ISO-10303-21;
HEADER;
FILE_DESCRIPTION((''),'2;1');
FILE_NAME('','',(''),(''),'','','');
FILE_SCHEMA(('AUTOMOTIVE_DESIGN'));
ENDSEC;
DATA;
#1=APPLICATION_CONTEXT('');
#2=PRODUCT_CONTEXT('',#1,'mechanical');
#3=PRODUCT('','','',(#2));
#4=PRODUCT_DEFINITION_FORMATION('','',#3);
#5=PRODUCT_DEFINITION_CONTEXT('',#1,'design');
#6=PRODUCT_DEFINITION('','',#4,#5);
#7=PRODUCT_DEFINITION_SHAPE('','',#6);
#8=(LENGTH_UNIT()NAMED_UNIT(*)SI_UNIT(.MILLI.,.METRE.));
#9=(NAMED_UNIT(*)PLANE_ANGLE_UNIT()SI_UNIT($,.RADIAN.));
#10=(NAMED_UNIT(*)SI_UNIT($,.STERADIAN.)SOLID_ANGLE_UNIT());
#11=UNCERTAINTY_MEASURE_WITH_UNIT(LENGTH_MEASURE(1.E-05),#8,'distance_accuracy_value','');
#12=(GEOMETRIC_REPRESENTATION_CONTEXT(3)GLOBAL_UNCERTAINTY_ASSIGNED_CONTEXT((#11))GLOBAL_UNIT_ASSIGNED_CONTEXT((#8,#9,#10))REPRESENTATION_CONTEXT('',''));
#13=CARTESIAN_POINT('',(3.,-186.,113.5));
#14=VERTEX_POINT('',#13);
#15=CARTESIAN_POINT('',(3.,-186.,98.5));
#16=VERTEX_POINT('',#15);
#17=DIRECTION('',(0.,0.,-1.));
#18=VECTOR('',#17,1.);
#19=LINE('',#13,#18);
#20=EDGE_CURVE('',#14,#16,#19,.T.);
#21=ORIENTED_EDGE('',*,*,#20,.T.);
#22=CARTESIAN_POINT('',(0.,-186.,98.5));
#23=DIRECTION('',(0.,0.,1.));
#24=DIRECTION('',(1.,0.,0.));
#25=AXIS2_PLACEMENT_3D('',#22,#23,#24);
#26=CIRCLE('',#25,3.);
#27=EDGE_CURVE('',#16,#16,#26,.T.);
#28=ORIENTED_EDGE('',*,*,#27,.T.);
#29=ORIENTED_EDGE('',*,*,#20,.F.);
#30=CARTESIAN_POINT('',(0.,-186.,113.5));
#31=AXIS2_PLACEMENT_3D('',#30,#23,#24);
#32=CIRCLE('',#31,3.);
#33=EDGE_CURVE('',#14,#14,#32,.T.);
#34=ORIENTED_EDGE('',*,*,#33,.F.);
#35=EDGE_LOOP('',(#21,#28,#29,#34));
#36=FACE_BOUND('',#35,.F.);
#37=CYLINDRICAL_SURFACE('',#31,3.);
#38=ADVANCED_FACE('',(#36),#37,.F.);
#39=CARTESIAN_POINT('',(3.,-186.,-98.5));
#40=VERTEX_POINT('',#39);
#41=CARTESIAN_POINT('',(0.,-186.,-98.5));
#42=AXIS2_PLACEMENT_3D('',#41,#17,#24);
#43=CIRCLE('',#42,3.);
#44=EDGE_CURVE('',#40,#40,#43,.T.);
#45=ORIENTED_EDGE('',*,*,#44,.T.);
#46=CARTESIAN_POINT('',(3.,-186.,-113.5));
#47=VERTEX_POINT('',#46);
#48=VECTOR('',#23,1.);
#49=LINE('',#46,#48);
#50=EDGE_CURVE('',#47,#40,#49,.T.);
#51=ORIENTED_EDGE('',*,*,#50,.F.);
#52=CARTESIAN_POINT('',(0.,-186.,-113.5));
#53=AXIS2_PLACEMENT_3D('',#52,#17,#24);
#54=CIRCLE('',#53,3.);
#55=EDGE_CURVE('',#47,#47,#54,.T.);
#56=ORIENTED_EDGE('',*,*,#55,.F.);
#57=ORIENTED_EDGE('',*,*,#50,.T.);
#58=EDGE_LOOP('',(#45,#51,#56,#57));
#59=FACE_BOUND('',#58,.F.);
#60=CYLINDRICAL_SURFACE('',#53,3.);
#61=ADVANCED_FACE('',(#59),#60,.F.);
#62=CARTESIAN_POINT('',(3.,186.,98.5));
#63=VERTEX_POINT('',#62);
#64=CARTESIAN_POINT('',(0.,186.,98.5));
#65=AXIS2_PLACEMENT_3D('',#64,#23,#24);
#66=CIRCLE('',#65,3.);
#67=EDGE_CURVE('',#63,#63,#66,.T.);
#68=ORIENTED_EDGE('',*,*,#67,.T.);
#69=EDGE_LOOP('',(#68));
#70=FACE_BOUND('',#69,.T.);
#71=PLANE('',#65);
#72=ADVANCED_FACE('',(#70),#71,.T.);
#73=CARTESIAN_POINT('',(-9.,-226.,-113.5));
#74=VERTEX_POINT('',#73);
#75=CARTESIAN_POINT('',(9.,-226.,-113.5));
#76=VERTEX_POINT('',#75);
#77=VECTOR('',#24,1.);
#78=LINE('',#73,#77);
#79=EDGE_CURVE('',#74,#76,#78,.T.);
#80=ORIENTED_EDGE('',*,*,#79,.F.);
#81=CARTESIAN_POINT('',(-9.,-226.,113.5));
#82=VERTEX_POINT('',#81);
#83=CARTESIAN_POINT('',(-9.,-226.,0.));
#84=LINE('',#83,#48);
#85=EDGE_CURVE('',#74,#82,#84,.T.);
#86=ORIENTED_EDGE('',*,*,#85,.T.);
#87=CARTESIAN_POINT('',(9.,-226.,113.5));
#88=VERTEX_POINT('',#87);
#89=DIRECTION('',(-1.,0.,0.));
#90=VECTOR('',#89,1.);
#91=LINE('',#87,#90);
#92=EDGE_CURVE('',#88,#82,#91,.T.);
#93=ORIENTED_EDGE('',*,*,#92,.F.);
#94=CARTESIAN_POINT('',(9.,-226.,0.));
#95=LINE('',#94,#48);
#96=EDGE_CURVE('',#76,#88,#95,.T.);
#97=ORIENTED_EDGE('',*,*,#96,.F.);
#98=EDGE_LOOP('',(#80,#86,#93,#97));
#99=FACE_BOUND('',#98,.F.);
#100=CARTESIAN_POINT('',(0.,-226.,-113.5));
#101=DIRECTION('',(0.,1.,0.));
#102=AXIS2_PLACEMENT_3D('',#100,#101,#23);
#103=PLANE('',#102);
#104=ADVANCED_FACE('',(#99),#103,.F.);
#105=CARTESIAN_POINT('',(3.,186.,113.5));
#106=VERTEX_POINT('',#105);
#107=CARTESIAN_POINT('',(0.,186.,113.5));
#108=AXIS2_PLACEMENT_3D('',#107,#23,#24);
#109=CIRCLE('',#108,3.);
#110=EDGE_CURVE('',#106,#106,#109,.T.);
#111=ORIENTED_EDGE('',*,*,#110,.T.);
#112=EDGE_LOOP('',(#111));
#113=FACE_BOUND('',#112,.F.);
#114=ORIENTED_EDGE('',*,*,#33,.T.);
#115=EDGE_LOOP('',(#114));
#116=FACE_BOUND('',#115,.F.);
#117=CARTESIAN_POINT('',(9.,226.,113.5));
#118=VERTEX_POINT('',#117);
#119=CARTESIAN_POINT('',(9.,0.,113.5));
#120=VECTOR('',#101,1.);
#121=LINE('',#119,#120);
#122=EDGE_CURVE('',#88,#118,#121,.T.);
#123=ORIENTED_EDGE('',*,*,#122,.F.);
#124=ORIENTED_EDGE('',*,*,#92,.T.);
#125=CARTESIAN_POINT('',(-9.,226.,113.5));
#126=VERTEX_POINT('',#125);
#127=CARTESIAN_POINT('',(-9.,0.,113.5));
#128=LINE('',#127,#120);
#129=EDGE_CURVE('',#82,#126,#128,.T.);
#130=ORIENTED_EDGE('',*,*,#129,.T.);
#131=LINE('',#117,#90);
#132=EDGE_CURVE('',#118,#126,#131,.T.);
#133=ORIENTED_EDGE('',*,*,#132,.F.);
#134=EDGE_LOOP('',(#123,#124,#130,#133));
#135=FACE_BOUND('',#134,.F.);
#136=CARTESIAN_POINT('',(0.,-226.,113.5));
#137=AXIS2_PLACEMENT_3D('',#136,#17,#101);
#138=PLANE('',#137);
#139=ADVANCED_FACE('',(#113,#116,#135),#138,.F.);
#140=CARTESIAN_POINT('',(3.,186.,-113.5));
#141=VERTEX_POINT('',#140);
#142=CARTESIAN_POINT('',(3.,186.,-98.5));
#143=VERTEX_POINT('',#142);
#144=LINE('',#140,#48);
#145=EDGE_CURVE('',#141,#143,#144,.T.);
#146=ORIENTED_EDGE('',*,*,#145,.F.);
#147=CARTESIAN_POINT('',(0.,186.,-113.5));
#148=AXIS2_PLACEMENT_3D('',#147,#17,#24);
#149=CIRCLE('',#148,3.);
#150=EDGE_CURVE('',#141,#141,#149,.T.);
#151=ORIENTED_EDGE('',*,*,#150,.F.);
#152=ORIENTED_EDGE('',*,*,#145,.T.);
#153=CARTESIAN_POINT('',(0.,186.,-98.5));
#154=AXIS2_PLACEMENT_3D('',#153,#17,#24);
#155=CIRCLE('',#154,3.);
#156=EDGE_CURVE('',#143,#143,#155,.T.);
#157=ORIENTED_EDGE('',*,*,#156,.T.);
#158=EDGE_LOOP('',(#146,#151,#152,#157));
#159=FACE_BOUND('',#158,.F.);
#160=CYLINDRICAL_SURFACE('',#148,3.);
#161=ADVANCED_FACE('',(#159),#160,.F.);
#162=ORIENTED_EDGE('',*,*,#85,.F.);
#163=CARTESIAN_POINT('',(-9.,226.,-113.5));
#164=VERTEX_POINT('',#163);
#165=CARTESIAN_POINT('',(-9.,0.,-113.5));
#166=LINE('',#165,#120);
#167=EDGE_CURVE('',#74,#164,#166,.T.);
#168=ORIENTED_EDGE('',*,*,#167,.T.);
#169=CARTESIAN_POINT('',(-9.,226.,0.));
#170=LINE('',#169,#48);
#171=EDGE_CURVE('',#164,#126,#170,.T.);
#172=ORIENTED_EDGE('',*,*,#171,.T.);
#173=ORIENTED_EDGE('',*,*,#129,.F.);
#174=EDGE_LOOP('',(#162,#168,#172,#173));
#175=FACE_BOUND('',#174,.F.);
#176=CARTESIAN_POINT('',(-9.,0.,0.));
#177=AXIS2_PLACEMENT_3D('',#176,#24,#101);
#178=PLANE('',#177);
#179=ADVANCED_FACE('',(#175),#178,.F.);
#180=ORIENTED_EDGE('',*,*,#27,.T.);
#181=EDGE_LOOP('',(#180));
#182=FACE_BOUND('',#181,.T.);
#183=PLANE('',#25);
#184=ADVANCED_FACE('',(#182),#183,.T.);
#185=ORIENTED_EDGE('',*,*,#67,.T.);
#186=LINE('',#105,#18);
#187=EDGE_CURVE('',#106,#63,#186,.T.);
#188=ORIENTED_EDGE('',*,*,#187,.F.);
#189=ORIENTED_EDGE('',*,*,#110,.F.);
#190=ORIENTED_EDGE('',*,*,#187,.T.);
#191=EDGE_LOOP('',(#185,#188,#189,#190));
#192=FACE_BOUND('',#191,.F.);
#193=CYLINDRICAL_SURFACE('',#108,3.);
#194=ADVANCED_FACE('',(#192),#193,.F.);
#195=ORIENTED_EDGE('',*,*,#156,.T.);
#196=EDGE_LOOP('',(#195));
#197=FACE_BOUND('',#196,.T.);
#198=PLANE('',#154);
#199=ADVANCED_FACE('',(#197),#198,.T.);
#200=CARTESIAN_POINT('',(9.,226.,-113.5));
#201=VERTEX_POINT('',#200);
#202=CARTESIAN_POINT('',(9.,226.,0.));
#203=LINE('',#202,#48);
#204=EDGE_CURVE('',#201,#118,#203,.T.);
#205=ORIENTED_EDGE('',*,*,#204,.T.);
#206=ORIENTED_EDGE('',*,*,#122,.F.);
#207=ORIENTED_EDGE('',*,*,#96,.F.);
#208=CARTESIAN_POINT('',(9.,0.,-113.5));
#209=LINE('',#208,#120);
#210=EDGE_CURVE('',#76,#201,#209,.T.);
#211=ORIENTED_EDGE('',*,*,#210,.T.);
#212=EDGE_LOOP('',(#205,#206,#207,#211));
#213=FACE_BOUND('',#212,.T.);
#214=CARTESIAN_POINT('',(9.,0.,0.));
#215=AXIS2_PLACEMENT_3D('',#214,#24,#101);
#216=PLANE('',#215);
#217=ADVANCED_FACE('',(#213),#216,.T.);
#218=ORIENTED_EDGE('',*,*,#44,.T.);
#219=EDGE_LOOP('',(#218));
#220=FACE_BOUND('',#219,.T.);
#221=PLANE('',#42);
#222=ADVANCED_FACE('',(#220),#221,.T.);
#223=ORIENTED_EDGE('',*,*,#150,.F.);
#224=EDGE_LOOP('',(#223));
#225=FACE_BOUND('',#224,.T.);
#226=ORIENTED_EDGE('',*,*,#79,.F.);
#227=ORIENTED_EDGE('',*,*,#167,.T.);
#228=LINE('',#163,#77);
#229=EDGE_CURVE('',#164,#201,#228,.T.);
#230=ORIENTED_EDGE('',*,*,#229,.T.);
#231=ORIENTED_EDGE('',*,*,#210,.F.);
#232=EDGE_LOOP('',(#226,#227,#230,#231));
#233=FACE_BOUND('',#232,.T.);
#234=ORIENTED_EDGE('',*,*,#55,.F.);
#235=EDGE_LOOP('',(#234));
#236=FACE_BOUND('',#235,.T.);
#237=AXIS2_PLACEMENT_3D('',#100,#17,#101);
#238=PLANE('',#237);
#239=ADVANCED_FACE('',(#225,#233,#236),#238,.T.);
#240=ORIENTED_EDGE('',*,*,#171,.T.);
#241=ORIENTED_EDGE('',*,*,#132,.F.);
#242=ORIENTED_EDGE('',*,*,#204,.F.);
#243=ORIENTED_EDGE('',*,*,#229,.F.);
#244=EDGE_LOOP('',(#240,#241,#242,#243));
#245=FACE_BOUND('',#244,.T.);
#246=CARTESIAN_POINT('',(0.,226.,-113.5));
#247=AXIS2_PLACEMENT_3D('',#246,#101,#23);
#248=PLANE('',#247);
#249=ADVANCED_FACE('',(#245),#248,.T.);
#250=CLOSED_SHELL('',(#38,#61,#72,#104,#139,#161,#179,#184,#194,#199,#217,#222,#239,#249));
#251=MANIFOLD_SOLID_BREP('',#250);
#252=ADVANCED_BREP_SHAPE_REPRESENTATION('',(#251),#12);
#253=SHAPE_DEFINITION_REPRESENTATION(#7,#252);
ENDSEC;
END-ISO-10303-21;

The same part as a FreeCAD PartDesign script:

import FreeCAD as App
import Part
import Sketcher
Q = App.Units.Quantity

doc = App.newDocument("Part")
body = doc.addObject("PartDesign::Body", "Body")

sketch1 = body.newObject("Sketcher::SketchObject", "Sketch")
sketch1.AttachmentSupport = (doc.getObject("YZ_Plane"), [""])
sketch1.MapMode = "FlatFace"
sketch1.addGeometry([
    Part.LineSegment(App.Vector(-226, 114, 0), App.Vector(-226, -114, 0)),
    Part.LineSegment(App.Vector(-226, -114, 0), App.Vector(226, -114, 0)),
    Part.LineSegment(App.Vector(226, -114, 0), App.Vector(226, 114, 0)),
    Part.LineSegment(App.Vector(226, 114, 0), App.Vector(-226, 114, 0)),
], False)
sketch1.addConstraint([
    Sketcher.Constraint("Coincident", 0, 2, 1, 1),
    Sketcher.Constraint("Coincident", 1, 2, 2, 1),
    Sketcher.Constraint("Coincident", 2, 2, 3, 1),
    Sketcher.Constraint("Coincident", 3, 2, 0, 1),
    Sketcher.Constraint("Vertical", 0),
    Sketcher.Constraint("Horizontal", 1),
    Sketcher.Constraint("Vertical", 2),
    Sketcher.Constraint("Horizontal", 3),
    Sketcher.Constraint("Symmetric", 0, 2, 2, 2, -1, 1),
    Sketcher.Constraint("DistanceX", 1, 1, 1, 2, Q("452 mm")),
    Sketcher.Constraint("DistanceY", 0, 2, 0, 1, Q("227 mm")),
])
pad1 = body.newObject("PartDesign::Pad", "Pad")
pad1.Profile = sketch1
pad1.Length = 18
pad1.Midplane = True

sketch2 = body.newObject("Sketcher::SketchObject", "Sketch001")
sketch2.AttachmentSupport = (doc.getObject("XY_Plane"), [""])
sketch2.MapMode = "FlatFace"
sketch2.AttachmentOffset = App.Placement(App.Vector(0, 0, 113.5), App.Rotation())
sketch2.addGeometry([
    Part.Circle(App.Vector(0, -186, 0), App.Vector(0, 0, 1), 3),
    Part.Circle(App.Vector(0, 186, 0), App.Vector(0, 0, 1), 3),
], False)
sketch2.addConstraint([
    Sketcher.Constraint("Equal", 0, 1),
    Sketcher.Constraint("Symmetric", 0, 3, 1, 3, -1, 1),
    Sketcher.Constraint("PointOnObject", 0, 3, -2),
    Sketcher.Constraint("Diameter", 0, Q("6 mm")),
    Sketcher.Constraint("DistanceY", 0, 3, -1, 1, Q("186 mm")),
])
pocket1 = body.newObject("PartDesign::Pocket", "Pocket")
pocket1.Profile = sketch2
pocket1.Length = 15

sketch3 = body.newObject("Sketcher::SketchObject", "Sketch002")
sketch3.AttachmentSupport = (doc.getObject("XY_Plane"), [""])
sketch3.MapMode = "FlatFace"
sketch3.AttachmentOffset = App.Placement(App.Vector(0, 0, -113.5), App.Rotation())
sketch3.addGeometry([
    Part.Circle(App.Vector(0, -186, 0), App.Vector(0, 0, 1), 3),
    Part.Circle(App.Vector(0, 186, 0), App.Vector(0, 0, 1), 3),
], False)
sketch3.addConstraint([
    Sketcher.Constraint("Equal", 0, 1),
    Sketcher.Constraint("Symmetric", 0, 3, 1, 3, -1, 1),
    Sketcher.Constraint("PointOnObject", 0, 3, -2),
    Sketcher.Constraint("Diameter", 0, Q("6 mm")),
    Sketcher.Constraint("DistanceY", 0, 3, -1, 1, Q("186 mm")),
])
pocket2 = body.newObject("PartDesign::Pocket", "Pocket001")
pocket2.Profile = sketch3
pocket2.Length = 15
pocket2.Reversed = True

doc.recompute()
